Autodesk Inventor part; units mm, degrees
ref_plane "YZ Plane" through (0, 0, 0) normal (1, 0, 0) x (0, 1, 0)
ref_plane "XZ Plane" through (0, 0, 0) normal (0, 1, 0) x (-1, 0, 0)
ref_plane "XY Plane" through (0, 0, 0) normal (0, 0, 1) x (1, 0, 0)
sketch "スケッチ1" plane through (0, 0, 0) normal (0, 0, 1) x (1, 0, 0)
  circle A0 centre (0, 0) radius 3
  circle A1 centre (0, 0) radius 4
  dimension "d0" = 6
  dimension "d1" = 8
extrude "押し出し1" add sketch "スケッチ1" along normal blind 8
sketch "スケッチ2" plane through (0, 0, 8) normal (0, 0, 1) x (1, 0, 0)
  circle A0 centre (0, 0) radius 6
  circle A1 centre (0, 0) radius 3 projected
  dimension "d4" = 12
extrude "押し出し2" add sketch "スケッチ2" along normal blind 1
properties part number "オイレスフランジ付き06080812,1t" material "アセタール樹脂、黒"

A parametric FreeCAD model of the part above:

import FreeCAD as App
import Part
import Sketcher
Q = App.Units.Quantity

doc = App.newDocument("Part")
params = doc.addObject("Spreadsheet::Sheet", "Params")
for row, (alias, value) in enumerate([
    ("sketch1_diameter", "8 mm"),
    ("sketch1_diameter2", "6 mm"),
    ("pad1_length", "8 mm"),
    ("sketch2_diameter", "12 mm"),
    ("sketch2_diameter2", "6 mm"),
    ("pad2_length", "1 mm"),
], start=1):
    params.set(f"A{row}", alias)
    params.set(f"B{row}", "=" + value)
    params.setAlias(f"B{row}", alias)

body = doc.addObject("PartDesign::Body", "Body")

sketch1 = body.newObject("Sketcher::SketchObject", "Sketch")
sketch1.AttachmentSupport = (doc.getObject("XY_Plane"), [""])
sketch1.MapMode = "FlatFace"
sketch1.addGeometry([
    Part.Circle(App.Vector(0, 0, 0), App.Vector(0, 0, 1), 4),
    Part.Circle(App.Vector(0, 0, 0), App.Vector(0, 0, 1), 3),
], False)
sketch1.addConstraint([
    Sketcher.Constraint("Coincident", 0, 3, -1, 1),
    Sketcher.Constraint("Coincident", 1, 3, -1, 1),
    Sketcher.Constraint("Diameter", 0, Q("8 mm")),
    Sketcher.Constraint("Diameter", 1, Q("6 mm")),
])
sketch1.setExpression("Constraints[2]", "Params.sketch1_diameter")
sketch1.setExpression("Constraints[3]", "Params.sketch1_diameter2")
pad1 = body.newObject("PartDesign::Pad", "Pad")
pad1.Profile = sketch1
pad1.setExpression("Length", "Params.pad1_length")

sketch2 = body.newObject("Sketcher::SketchObject", "Sketch001")
sketch2.AttachmentSupport = (doc.getObject("XY_Plane"), [""])
sketch2.MapMode = "FlatFace"
sketch2.AttachmentOffset = App.Placement(App.Vector(0, 0, 8), App.Rotation())
sketch2.addGeometry([
    Part.Circle(App.Vector(0, 0, 0), App.Vector(0, 0, 1), 6),
    Part.Circle(App.Vector(0, 0, 0), App.Vector(0, 0, 1), 3),
], False)
sketch2.addConstraint([
    Sketcher.Constraint("Coincident", 0, 3, -1, 1),
    Sketcher.Constraint("Coincident", 1, 3, -1, 1),
    Sketcher.Constraint("Diameter", 0, Q("12 mm")),
    Sketcher.Constraint("Diameter", 1, Q("6 mm")),
])
sketch2.setExpression("Constraints[2]", "Params.sketch2_diameter")
sketch2.setExpression("Constraints[3]", "Params.sketch2_diameter2")
pad2 = body.newObject("PartDesign::Pad", "Pad001")
pad2.Profile = sketch2
pad2.setExpression("Length", "Params.pad2_length")

doc.recompute()
